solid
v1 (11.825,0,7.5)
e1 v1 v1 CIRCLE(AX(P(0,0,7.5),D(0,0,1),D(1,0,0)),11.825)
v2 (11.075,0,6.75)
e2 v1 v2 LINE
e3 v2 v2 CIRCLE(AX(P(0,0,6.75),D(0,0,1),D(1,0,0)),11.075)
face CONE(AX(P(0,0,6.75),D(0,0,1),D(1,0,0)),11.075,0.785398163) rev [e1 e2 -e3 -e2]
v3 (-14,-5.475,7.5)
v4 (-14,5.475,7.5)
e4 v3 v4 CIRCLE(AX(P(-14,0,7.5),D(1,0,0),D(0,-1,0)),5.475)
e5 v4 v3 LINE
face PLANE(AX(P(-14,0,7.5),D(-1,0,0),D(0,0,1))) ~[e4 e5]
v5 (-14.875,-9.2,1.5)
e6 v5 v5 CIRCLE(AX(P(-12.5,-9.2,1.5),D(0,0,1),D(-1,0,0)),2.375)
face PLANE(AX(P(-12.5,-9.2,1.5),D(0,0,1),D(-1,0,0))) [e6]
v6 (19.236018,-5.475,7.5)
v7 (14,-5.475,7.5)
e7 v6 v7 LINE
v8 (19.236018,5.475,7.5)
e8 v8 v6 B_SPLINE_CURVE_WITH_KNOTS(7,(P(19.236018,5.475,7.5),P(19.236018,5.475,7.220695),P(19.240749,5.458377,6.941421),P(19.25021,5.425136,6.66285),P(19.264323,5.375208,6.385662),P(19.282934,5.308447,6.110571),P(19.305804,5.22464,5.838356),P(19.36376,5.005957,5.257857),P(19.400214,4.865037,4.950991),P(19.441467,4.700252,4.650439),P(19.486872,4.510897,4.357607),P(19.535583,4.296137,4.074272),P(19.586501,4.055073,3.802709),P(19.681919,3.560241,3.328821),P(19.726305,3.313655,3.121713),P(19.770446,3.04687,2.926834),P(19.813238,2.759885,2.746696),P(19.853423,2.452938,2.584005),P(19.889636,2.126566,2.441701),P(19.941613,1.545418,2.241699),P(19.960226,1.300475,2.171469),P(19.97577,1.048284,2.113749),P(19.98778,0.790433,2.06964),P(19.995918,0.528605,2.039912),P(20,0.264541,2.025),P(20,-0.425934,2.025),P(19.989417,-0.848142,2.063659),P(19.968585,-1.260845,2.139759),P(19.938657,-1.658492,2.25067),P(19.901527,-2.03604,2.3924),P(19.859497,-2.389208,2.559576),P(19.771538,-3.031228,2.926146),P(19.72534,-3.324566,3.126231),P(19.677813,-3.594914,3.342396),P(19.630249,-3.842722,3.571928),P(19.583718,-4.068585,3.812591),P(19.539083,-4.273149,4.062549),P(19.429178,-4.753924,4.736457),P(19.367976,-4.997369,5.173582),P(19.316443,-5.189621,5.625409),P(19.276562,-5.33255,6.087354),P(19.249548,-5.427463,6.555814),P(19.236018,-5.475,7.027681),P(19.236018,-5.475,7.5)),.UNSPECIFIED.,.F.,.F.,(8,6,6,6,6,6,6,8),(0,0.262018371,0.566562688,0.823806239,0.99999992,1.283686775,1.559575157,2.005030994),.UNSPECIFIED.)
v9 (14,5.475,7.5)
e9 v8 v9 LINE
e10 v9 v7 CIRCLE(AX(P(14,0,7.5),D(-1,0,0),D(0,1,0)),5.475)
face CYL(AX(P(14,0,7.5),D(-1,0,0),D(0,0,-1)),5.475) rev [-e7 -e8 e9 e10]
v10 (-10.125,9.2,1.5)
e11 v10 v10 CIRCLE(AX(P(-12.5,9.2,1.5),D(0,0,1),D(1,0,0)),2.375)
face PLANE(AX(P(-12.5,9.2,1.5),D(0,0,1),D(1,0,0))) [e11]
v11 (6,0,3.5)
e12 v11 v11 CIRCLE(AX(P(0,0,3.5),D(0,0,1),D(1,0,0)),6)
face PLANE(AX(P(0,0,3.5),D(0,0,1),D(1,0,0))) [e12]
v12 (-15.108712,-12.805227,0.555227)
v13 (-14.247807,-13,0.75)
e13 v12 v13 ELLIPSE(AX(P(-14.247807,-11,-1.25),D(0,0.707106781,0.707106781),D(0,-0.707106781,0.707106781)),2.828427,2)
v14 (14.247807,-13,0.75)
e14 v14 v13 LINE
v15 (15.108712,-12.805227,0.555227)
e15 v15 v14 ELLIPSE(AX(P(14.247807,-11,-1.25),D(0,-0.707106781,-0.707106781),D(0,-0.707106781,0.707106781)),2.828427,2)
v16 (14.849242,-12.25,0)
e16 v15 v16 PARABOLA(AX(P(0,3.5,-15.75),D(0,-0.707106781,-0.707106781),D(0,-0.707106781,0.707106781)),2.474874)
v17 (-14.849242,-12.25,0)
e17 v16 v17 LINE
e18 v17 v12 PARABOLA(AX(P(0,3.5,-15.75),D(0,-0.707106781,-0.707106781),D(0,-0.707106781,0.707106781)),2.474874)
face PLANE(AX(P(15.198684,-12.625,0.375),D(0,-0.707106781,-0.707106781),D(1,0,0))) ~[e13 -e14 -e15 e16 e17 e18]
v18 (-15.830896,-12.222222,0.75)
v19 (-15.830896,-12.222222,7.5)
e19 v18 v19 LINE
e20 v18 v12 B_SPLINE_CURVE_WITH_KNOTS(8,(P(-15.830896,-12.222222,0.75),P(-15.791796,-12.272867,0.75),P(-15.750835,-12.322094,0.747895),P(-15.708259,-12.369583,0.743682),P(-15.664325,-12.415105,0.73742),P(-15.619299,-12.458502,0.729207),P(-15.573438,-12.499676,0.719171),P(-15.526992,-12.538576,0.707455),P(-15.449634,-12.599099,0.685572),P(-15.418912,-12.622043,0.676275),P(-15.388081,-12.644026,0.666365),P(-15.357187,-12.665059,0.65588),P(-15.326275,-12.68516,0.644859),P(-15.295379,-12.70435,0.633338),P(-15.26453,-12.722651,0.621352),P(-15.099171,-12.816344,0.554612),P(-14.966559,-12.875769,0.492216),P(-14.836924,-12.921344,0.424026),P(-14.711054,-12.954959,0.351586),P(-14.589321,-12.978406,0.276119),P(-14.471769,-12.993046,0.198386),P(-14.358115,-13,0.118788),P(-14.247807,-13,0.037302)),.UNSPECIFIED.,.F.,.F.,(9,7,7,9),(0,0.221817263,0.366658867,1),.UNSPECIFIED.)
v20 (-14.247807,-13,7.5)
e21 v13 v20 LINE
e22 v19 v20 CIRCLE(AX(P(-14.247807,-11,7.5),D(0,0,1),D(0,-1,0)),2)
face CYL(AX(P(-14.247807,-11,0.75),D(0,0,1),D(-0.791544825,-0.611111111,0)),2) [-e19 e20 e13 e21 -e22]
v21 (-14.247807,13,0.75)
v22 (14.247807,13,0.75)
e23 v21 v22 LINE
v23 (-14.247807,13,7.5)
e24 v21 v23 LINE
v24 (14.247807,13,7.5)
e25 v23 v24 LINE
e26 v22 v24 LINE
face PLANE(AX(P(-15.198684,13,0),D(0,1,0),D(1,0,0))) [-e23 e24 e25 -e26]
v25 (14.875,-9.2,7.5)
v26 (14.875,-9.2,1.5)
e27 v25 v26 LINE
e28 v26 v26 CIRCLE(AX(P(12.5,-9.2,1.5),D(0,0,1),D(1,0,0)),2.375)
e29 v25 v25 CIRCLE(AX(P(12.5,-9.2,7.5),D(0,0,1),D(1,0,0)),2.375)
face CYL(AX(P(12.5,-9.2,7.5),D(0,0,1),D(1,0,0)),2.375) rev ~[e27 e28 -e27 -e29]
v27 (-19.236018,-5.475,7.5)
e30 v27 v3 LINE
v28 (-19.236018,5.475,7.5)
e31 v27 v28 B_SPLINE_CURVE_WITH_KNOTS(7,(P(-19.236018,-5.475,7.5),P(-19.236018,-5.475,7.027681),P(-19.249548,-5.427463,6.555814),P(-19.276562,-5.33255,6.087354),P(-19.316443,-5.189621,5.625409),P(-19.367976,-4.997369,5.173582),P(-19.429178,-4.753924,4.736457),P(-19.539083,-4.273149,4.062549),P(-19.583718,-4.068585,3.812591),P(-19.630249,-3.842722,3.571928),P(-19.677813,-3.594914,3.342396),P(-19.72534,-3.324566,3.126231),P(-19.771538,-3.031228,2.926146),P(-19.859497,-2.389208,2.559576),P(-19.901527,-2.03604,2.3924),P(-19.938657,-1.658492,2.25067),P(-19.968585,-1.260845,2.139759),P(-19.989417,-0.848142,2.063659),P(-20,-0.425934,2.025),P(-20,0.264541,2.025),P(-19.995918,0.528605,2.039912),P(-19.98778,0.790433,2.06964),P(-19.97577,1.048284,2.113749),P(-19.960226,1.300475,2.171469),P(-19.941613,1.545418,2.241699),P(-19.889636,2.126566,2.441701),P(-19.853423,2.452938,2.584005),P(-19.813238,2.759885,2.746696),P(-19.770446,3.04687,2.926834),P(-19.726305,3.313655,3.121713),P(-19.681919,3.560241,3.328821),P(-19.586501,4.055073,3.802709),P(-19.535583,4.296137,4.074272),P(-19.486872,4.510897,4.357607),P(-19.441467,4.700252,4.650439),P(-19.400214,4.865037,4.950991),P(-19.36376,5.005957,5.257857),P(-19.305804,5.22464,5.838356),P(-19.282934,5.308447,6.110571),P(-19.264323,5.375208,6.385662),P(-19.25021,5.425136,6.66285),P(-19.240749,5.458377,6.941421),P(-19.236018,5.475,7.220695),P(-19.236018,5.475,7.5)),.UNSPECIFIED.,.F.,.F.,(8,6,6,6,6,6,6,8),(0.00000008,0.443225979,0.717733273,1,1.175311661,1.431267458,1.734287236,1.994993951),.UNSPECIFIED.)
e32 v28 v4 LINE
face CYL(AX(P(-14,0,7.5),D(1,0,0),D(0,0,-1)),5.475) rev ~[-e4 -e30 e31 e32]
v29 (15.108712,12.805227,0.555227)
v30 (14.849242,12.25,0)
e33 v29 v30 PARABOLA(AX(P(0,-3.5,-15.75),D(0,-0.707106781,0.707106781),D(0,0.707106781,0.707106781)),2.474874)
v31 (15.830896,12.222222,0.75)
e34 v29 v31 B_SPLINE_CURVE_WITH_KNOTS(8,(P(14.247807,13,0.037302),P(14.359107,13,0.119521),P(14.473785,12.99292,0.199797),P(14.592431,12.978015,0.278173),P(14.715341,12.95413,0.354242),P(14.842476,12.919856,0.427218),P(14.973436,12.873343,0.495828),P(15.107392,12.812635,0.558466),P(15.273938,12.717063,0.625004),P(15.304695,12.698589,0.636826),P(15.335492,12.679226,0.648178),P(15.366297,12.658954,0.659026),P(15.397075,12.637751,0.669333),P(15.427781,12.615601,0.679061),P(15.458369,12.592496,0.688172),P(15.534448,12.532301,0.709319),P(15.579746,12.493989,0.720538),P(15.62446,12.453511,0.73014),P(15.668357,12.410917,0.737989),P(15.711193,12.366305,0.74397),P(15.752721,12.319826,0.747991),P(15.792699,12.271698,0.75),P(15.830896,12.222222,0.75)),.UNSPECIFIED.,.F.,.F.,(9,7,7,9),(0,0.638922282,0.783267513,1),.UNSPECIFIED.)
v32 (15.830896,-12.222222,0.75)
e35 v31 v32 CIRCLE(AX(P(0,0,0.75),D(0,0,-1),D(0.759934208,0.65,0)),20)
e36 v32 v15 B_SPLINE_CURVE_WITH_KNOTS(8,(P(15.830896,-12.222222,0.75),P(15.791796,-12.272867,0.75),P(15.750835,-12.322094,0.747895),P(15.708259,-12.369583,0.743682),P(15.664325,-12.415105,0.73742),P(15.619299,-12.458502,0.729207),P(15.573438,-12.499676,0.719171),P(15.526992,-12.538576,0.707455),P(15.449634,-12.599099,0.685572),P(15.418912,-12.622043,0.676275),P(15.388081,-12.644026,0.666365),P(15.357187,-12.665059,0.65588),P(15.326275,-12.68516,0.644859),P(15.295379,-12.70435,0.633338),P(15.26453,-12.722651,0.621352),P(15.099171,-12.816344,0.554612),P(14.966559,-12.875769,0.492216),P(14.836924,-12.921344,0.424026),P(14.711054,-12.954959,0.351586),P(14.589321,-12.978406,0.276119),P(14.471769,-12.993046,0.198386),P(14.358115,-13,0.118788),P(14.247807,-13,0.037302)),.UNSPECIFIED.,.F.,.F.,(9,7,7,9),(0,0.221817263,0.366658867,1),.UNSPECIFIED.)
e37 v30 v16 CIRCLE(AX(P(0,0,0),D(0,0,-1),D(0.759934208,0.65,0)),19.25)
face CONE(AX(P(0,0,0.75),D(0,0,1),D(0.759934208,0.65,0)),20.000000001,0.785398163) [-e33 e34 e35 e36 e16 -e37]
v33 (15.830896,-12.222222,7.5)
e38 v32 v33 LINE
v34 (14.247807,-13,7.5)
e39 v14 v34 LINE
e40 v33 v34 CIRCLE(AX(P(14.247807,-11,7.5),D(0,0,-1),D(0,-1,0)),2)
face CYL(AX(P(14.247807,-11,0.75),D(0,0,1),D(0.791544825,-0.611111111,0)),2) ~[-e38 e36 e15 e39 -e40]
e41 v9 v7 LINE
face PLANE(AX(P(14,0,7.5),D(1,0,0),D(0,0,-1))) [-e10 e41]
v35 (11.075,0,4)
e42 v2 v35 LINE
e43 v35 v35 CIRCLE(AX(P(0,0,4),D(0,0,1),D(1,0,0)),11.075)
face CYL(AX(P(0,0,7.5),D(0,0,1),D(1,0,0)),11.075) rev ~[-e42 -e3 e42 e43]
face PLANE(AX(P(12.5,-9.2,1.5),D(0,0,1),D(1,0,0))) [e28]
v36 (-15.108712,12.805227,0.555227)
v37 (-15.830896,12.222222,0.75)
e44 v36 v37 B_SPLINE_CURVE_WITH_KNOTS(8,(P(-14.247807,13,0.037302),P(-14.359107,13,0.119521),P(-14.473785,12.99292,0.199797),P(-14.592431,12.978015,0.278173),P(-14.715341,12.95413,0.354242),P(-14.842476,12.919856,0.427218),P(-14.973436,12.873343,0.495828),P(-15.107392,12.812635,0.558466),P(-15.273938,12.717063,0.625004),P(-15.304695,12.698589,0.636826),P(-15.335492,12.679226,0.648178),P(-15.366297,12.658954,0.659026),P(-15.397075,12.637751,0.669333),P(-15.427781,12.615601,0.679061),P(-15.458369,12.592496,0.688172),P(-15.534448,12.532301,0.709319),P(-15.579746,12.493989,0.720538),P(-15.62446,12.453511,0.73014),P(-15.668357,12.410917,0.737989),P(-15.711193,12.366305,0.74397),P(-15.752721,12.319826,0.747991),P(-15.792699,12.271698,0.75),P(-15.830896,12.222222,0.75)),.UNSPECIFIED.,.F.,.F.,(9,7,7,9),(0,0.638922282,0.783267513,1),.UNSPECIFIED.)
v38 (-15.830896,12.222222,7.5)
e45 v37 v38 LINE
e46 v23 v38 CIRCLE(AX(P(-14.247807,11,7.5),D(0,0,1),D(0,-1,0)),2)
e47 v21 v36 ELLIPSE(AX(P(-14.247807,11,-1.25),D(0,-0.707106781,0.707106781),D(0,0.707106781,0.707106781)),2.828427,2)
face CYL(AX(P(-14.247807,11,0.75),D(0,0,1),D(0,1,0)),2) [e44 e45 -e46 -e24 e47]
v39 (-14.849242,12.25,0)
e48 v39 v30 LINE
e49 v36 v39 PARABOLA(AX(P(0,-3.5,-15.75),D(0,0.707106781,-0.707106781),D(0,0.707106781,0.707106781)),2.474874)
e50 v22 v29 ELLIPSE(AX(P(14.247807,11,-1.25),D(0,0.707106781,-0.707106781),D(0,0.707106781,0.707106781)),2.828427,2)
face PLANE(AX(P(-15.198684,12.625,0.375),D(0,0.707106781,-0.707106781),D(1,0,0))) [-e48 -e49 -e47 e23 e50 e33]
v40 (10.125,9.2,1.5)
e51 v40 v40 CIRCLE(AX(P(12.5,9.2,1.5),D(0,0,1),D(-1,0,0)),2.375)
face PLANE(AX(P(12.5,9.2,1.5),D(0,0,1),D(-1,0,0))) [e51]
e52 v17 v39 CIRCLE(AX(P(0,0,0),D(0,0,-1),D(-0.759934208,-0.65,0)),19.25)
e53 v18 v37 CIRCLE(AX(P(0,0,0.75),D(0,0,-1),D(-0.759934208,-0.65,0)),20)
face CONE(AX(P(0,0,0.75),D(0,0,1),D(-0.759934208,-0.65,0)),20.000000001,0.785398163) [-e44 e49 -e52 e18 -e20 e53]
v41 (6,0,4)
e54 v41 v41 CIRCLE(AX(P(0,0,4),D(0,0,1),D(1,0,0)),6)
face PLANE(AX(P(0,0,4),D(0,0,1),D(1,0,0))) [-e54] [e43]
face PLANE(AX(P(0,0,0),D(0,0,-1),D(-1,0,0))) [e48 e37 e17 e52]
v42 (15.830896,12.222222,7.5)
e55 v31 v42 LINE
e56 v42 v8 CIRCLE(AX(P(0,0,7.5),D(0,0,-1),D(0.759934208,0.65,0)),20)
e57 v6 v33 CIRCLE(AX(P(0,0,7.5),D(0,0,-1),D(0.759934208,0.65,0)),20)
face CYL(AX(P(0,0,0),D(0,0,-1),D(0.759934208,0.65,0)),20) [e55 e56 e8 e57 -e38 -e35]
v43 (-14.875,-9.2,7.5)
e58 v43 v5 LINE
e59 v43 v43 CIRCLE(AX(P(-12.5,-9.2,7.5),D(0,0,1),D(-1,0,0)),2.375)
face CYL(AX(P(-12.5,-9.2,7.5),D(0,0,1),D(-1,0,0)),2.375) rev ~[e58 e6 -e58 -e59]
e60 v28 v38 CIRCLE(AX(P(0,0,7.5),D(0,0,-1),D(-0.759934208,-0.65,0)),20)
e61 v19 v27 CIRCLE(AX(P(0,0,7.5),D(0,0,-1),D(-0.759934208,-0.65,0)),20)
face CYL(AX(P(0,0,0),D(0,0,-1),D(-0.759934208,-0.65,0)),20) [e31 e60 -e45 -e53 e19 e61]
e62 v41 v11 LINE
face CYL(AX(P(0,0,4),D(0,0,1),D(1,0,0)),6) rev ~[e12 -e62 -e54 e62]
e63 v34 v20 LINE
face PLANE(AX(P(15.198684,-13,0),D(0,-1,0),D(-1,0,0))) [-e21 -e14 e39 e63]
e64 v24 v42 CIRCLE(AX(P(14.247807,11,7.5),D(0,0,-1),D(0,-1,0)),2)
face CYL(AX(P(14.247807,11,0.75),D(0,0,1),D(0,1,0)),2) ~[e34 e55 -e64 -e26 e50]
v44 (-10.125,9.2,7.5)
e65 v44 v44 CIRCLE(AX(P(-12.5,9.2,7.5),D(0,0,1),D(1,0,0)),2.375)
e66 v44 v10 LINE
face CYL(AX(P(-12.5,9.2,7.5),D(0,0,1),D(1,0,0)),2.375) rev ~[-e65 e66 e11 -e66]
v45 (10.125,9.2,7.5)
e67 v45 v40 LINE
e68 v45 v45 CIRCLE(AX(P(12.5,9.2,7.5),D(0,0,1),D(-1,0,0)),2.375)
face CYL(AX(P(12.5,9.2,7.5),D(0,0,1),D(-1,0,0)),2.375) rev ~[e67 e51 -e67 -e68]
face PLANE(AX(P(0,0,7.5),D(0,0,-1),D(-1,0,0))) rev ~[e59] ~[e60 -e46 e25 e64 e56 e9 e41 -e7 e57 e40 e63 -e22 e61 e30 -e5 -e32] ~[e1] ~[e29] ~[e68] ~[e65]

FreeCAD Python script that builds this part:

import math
import FreeCAD as App
import Part
import Sketcher


def edges_at(feature, points):
    """Names of the edges that pass closest to the given points."""
    edges = feature.Shape.Edges
    near = lambda p: min(range(len(edges)), key=lambda i: edges[i].distToShape(Part.Vertex(*p))[0])
    return sorted({f"Edge{near(p) + 1}" for p in points})

doc = App.newDocument("Part")
body = doc.addObject("PartDesign::Body", "Body")

# Sketch on XY plane
sketch1 = body.newObject("Sketcher::SketchObject", "Sketch")
sketch1.AttachmentSupport = (doc.getObject("XY_Plane"), [""])
sketch1.MapMode = "FlatFace"
sketch1.addGeometry(Part.LineSegment(App.Vector(15, 13, 0), App.Vector(-15, 13, 0)), False)
sketch1.addGeometry(Part.ArcOfCircle(Part.Circle(App.Vector(0, 0, 0), App.Vector(0, 0, 1), 20), math.radians(139), math.radians(221)), False)
sketch1.addGeometry(Part.LineSegment(App.Vector(-15, -13, 0), App.Vector(15, -13, 0)), False)
sketch1.addGeometry(Part.ArcOfCircle(Part.Circle(App.Vector(0, 0, 0), App.Vector(0, 0, 1), 20), math.radians(-41), math.radians(41)), False)
sketch1.addConstraint(Sketcher.Constraint("Coincident", 0, 2, 1, 1))
sketch1.addConstraint(Sketcher.Constraint("Coincident", 1, 2, 2, 1))
sketch1.addConstraint(Sketcher.Constraint("Coincident", 2, 2, 3, 1))
sketch1.addConstraint(Sketcher.Constraint("Coincident", 3, 2, 0, 1))
sketch1.addConstraint(Sketcher.Constraint("Horizontal", 0))
sketch1.addConstraint(Sketcher.Constraint("Horizontal", 2))
sketch1.addConstraint(Sketcher.Constraint("Coincident", 1, 3, -1, 1))
sketch1.addConstraint(Sketcher.Constraint("Coincident", 3, 3, -1, 1))
sketch1.addConstraint(Sketcher.Constraint("Equal", 1, 3))
sketch1.addConstraint(Sketcher.Constraint("Vertical", 0, 2, 1, 2))
sketch1.addConstraint(Sketcher.Constraint("Radius", 1, 20.0))
sketch1.addConstraint(Sketcher.Constraint("DistanceY", -1, 1, 0, 2, 13.0))
pad1 = body.newObject("PartDesign::Pad", "Pad")
pad1.Profile = sketch1
pad1.Length = 7.5

# Sketch on XY plane
sketch2 = body.newObject("Sketcher::SketchObject", "Sketch001")
sketch2.AttachmentSupport = (doc.getObject("XY_Plane"), [""])
sketch2.MapMode = "FlatFace"
sketch2.AttachmentOffset = App.Placement(App.Vector(0, 0, 7.5), App.Rotation())
sketch2.addGeometry(Part.Circle(App.Vector(0, 0, 0), App.Vector(0, 0, 1), 11), False)
sketch2.addConstraint(Sketcher.Constraint("Coincident", 0, 3, -1, 1))
sketch2.addConstraint(Sketcher.Constraint("Diameter", 0, 22.15))
pocket1 = body.newObject("PartDesign::Pocket", "Pocket")
pocket1.Profile = sketch2
pocket1.Length = 3.5

# Sketch on YZ plane
sketch3 = body.newObject("Sketcher::SketchObject", "Sketch002")
sketch3.AttachmentSupport = (doc.getObject("YZ_Plane"), [""])
sketch3.MapMode = "FlatFace"
sketch3.AttachmentOffset = App.Placement(App.Vector(0, 0, 14), App.Rotation())
sketch3.addGeometry(Part.Circle(App.Vector(0, 8, 0), App.Vector(0, 0, 1), 5), False)
sketch3.addConstraint(Sketcher.Constraint("PointOnObject", 0, 3, -2))
sketch3.addConstraint(Sketcher.Constraint("Diameter", 0, 10.95))
sketch3.addConstraint(Sketcher.Constraint("DistanceY", -1, 1, 0, 3, 7.5))
pocket2 = body.newObject("PartDesign::Pocket", "Pocket001")
pocket2.Profile = sketch3
pocket2.Type = "ThroughAll"
pocket2.Reversed = True
doc.recompute()

mirrored = body.newObject("PartDesign::Mirrored", "Mirrored")
mirrored.Originals = [pocket2]
mirrored.MirrorPlane = (doc.getObject("YZ_Plane"), [""])
body.Tip = mirrored

# Sketch on XY plane
sketch4 = body.newObject("Sketcher::SketchObject", "Sketch003")
sketch4.AttachmentSupport = (doc.getObject("XY_Plane"), [""])
sketch4.MapMode = "FlatFace"
sketch4.AttachmentOffset = App.Placement(App.Vector(0, 0, 7.5), App.Rotation())
sketch4.addGeometry(Part.Circle(App.Vector(-12.5, 9.2, 0), App.Vector(0, 0, 1), 2.4), False)
sketch4.addGeometry(Part.Circle(App.Vector(12.5, 9.2, 0), App.Vector(0, 0, 1), 2.4), False)
sketch4.addGeometry(Part.Circle(App.Vector(12.5, -9.2, 0), App.Vector(0, 0, 1), 2.4), False)
sketch4.addGeometry(Part.Circle(App.Vector(-12.5, -9.2, 0), App.Vector(0, 0, 1), 2.4), False)
sketch4.addConstraint(Sketcher.Constraint("Equal", 0, 1))
sketch4.addConstraint(Sketcher.Constraint("Equal", 1, 2))
sketch4.addConstraint(Sketcher.Constraint("Equal", 2, 3))
sketch4.addConstraint(Sketcher.Constraint("Symmetric", 0, 3, 2, 3, -1, 1))
sketch4.addConstraint(Sketcher.Constraint("Symmetric", 1, 3, 3, 3, -1, 1))
sketch4.addConstraint(Sketcher.Constraint("Symmetric", 0, 3, 1, 3, -2))
sketch4.addConstraint(Sketcher.Constraint("Diameter", 0, 4.75))
sketch4.addConstraint(Sketcher.Constraint("DistanceX", 0, 3, 1, 3, 25.0))
sketch4.addConstraint(Sketcher.Constraint("DistanceY", -1, 1, 0, 3, 9.2))
pocket3 = body.newObject("PartDesign::Pocket", "Pocket002")
pocket3.Profile = sketch4
pocket3.Length = 6
doc.recompute()

chamfer = body.newObject("PartDesign::Chamfer", "Chamfer")
chamfer.Base = (pocket3, edges_at(pocket3, [
    (-11.075, 0, 7.5),
    (0, 13, 0),
    (20, 0, 0),
    (0, -13, 0),
    (-20, 0, 0),
]))
chamfer.Size = 0.75
doc.recompute()

fillet = body.newObject("PartDesign::Fillet", "Fillet")
fillet.Base = (chamfer, edges_at(chamfer, [
    (-15.199, -13, 4.125),
    (15.199, -13, 4.125),
    (15.199, 13, 4.125),
    (-15.199, 13, 4.125),
]))
fillet.Radius = 2

# Sketch on XY plane
sketch5 = body.newObject("Sketcher::SketchObject", "Sketch004")
sketch5.AttachmentSupport = (doc.getObject("XY_Plane"), [""])
sketch5.MapMode = "FlatFace"
sketch5.AttachmentOffset = App.Placement(App.Vector(0, 0, 4), App.Rotation())
sketch5.addGeometry(Part.Circle(App.Vector(0, 0, 0), App.Vector(0, 0, 1), 6), False)
sketch5.addConstraint(Sketcher.Constraint("Coincident", 0, 3, -1, 1))
sketch5.addConstraint(Sketcher.Constraint("Diameter", 0, 12.0))
pocket4 = body.newObject("PartDesign::Pocket", "Pocket003")
pocket4.Profile = sketch5
pocket4.Length = 0.5

doc.recompute()
